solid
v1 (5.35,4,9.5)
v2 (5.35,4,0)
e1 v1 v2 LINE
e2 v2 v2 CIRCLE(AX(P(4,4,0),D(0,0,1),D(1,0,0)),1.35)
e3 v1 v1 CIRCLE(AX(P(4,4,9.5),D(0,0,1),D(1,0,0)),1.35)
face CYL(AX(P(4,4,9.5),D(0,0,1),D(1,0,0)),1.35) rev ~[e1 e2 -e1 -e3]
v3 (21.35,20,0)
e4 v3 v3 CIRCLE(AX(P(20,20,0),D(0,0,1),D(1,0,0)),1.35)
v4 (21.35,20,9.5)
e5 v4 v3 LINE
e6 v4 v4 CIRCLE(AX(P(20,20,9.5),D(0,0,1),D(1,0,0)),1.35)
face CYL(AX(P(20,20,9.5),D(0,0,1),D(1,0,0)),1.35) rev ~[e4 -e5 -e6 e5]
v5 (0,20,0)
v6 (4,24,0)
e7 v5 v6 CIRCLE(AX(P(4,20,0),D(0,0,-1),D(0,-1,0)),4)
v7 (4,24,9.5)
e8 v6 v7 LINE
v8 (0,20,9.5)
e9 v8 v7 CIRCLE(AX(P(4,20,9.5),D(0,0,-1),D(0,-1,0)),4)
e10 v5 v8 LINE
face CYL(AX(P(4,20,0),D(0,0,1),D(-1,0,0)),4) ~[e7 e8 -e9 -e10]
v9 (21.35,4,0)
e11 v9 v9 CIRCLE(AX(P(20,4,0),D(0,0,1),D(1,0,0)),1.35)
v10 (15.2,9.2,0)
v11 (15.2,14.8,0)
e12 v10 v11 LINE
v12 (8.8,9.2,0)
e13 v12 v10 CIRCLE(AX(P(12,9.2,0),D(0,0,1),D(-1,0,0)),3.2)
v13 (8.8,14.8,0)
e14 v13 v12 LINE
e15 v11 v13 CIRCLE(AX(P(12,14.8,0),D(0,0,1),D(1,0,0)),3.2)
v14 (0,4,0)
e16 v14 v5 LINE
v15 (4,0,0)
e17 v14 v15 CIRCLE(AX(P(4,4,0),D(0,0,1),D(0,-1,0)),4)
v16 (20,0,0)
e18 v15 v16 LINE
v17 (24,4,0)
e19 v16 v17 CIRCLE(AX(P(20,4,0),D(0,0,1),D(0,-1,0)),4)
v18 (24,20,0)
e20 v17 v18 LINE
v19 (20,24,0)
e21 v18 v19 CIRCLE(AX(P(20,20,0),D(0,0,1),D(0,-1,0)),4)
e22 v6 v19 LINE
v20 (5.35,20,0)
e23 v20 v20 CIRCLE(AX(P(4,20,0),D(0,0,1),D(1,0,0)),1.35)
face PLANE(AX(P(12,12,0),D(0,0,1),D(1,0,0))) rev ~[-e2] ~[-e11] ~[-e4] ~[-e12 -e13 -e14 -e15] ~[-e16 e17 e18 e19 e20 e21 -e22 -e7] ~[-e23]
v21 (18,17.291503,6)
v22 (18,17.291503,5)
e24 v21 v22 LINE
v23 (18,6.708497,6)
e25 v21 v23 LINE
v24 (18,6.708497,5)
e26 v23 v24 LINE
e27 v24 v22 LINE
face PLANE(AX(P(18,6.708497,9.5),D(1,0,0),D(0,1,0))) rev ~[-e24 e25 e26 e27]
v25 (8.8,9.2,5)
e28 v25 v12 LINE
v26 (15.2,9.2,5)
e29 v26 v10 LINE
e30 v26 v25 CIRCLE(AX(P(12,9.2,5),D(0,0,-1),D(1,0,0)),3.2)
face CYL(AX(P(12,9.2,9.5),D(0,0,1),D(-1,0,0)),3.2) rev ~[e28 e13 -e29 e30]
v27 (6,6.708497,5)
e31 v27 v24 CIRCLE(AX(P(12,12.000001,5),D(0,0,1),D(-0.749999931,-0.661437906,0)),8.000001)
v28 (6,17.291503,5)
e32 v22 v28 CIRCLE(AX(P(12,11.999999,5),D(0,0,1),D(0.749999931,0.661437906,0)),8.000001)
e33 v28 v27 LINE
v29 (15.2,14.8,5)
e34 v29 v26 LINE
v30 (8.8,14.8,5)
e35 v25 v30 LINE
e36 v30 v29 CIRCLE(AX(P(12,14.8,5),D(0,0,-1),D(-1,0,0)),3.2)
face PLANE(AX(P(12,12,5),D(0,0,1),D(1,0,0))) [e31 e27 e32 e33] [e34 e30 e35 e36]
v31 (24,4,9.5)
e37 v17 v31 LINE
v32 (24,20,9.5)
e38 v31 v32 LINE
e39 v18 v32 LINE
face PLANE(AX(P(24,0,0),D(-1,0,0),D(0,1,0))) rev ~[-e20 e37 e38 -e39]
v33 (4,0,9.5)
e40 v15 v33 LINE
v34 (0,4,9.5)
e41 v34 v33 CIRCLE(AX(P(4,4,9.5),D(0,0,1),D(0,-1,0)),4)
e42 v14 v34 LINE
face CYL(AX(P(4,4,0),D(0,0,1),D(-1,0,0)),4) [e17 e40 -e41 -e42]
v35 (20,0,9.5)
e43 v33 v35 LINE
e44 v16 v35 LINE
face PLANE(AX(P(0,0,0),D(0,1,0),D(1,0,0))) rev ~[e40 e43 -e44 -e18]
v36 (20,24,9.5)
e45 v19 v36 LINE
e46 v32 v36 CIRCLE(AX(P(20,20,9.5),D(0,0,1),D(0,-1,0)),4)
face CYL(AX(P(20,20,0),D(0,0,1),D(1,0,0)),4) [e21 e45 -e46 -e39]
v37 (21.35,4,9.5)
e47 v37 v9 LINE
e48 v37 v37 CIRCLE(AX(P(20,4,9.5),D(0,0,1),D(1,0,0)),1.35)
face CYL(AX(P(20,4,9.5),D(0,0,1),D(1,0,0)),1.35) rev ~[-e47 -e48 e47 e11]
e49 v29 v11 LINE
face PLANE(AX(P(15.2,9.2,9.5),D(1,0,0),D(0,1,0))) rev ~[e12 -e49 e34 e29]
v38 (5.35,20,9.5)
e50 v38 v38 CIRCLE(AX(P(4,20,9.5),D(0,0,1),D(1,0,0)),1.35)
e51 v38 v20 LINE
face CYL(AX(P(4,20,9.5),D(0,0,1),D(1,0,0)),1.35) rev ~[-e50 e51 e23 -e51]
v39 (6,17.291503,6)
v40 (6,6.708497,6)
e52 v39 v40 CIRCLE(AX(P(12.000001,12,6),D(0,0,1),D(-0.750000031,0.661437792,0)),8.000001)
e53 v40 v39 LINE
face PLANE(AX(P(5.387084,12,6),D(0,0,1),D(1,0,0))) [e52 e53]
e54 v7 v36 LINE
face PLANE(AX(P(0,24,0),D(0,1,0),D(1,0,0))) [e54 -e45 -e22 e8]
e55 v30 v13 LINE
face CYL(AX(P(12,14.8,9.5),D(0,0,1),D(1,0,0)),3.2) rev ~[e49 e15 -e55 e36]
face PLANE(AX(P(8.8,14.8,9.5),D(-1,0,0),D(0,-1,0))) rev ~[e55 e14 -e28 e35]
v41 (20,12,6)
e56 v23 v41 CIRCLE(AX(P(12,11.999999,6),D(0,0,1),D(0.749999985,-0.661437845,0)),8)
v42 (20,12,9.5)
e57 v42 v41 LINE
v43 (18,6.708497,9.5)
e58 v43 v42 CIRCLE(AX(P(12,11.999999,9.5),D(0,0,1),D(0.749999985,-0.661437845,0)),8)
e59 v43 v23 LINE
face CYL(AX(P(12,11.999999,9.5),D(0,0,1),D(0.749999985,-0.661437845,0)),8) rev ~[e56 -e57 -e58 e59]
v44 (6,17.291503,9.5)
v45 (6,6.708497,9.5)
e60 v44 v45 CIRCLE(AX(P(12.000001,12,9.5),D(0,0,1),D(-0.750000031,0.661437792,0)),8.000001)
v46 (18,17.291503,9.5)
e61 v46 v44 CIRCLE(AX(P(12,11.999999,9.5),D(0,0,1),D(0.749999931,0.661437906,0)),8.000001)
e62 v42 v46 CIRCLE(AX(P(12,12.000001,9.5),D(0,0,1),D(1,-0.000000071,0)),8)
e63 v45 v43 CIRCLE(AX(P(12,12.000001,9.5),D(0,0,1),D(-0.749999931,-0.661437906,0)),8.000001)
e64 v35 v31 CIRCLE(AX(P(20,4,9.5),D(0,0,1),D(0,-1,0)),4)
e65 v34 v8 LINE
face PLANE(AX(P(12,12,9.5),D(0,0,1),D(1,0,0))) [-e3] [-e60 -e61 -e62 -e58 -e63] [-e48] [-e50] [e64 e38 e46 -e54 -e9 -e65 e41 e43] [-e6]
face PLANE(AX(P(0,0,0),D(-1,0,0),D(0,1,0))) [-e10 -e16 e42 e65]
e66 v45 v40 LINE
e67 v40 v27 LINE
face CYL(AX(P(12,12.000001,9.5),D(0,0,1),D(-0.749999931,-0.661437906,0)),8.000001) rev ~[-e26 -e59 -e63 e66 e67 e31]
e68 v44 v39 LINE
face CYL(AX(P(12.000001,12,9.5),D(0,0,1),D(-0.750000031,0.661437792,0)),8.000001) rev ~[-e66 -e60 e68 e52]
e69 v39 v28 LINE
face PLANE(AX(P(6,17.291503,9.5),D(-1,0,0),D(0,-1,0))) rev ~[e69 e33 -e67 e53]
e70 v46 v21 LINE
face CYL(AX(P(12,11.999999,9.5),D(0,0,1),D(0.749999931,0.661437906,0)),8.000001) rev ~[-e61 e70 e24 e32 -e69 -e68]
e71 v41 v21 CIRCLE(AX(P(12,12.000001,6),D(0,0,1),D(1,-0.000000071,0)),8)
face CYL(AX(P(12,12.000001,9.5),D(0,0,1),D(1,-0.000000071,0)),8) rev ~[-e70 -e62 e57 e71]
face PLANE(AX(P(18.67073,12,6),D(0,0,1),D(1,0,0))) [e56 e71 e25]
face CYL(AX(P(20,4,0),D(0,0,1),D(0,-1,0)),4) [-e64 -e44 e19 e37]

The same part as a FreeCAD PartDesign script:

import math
import FreeCAD as App
import Part
import Sketcher


def edges_at(feature, points):
    """Names of the edges that pass closest to the given points."""
    edges = feature.Shape.Edges
    near = lambda p: min(range(len(edges)), key=lambda i: edges[i].distToShape(Part.Vertex(*p))[0])
    return sorted({f"Edge{near(p) + 1}" for p in points})

doc = App.newDocument("Part")
body = doc.addObject("PartDesign::Body", "Body")

# Sketch on XY plane
sketch1 = doc.addObject("Sketcher::SketchObject", "Sketch")
body.addObject(sketch1)
sketch1.AttachmentSupport = (doc.XY_Plane, [""])
sketch1.MapMode = "FlatFace"
sketch1.addGeometry([
    Part.LineSegment(App.Vector(0, 24, 0), App.Vector(0, 0, 0)),
    Part.LineSegment(App.Vector(0, 0, 0), App.Vector(24, 0, 0)),
    Part.LineSegment(App.Vector(24, 0, 0), App.Vector(24, 24, 0)),
    Part.LineSegment(App.Vector(24, 24, 0), App.Vector(0, 24, 0)),
], False)
sketch1.addConstraint([
    Sketcher.Constraint("Coincident", 0, 2, 1, 1),
    Sketcher.Constraint("Coincident", 1, 2, 2, 1),
    Sketcher.Constraint("Coincident", 2, 2, 3, 1),
    Sketcher.Constraint("Coincident", 3, 2, 0, 1),
    Sketcher.Constraint("Vertical", 0),
    Sketcher.Constraint("Horizontal", 1),
    Sketcher.Constraint("Vertical", 2),
    Sketcher.Constraint("Horizontal", 3),
    Sketcher.Constraint("Coincident", 0, 2, -1, 1),
    Sketcher.Constraint("Equal", 3, 0),
    Sketcher.Constraint("DistanceX", 1, 1, 1, 2, 24.0),
])
pad1 = doc.addObject("PartDesign::Pad", "Pad")
body.addObject(pad1)
pad1.Profile = sketch1
pad1.Length = 9.5
doc.recompute()

fillet = doc.addObject("PartDesign::Fillet", "Fillet")
body.addObject(fillet)
fillet.Base = (pad1, edges_at(pad1, [
    (0, 0, 4.75),
    (24, 0, 4.75),
    (24, 24, 4.75),
    (0, 24, 4.75),
]))
fillet.Radius = 4

# Sketch on XY plane
sketch2 = doc.addObject("Sketcher::SketchObject", "Sketch001")
body.addObject(sketch2)
sketch2.AttachmentSupport = (doc.XY_Plane, [""])
sketch2.MapMode = "FlatFace"
sketch2.AttachmentOffset = App.Placement(App.Vector(0, 0, 9.5), App.Rotation())
sketch2.addGeometry([
    Part.ArcOfCircle(Part.Circle(App.Vector(12, 14.8, 0), App.Vector(0, 0, 1), 3.2), math.radians(0), math.radians(180)),
    Part.LineSegment(App.Vector(8.8, 14.8, 0), App.Vector(8.8, 9.2, 0)),
    Part.ArcOfCircle(Part.Circle(App.Vector(12, 9.2, 0), App.Vector(0, 0, 1), 3.2), math.radians(180), math.radians(360)),
    Part.LineSegment(App.Vector(15.2, 9.2, 0), App.Vector(15.2, 14.8, 0)),
], False)
sketch2.addConstraint([
    Sketcher.Constraint("Tangent", 0, 2, 1, 1),
    Sketcher.Constraint("Tangent", 1, 2, 2, 1),
    Sketcher.Constraint("Tangent", 2, 2, 3, 1),
    Sketcher.Constraint("Tangent", 3, 2, 0, 1),
    Sketcher.Constraint("Vertical", 1),
    Sketcher.Constraint("Vertical", 3),
    Sketcher.Constraint("Radius", 0, 3.2),
    Sketcher.Constraint("DistanceY", 1, 2, 1, 1, 5.6),
    Sketcher.Constraint("DistanceX", -1, 1, 0, 3, 12.0),
    Sketcher.Constraint("DistanceY", -1, 1, 0, 3, 14.8),
])
pocket1 = doc.addObject("PartDesign::Pocket", "Pocket")
body.addObject(pocket1)
pocket1.Profile = sketch2
pocket1.Type = "ThroughAll"

# Sketch on XY plane
sketch3 = doc.addObject("Sketcher::SketchObject", "Sketch002")
body.addObject(sketch3)
sketch3.AttachmentSupport = (doc.XY_Plane, [""])
sketch3.MapMode = "FlatFace"
sketch3.AttachmentOffset = App.Placement(App.Vector(0, 0, 9.5), App.Rotation())
sketch3.addGeometry([
    Part.ArcOfCircle(Part.Circle(App.Vector(12, 12, 0), App.Vector(0, 0, 1), 8), math.radians(41), math.radians(139)),  # 0
    Part.LineSegment(App.Vector(6, 17.3, 0), App.Vector(6, 6.7, 0)),  # 1
    Part.ArcOfCircle(Part.Circle(App.Vector(12, 12, 0), App.Vector(0, 0, 1), 8), math.radians(-139), math.radians(-41)),  # 2
    Part.LineSegment(App.Vector(18, 6.7, 0), App.Vector(18, 17.3, 0)),  # 3
    Part.ArcOfCircle(Part.Circle(App.Vector(12, 9.2, 0), App.Vector(0, 0, 1), 3.2), math.radians(180), math.radians(360)),  # 4
    Part.LineSegment(App.Vector(8.8, 9.2, 0), App.Vector(8.8, 14.8, 0)),  # 5
    Part.ArcOfCircle(Part.Circle(App.Vector(12, 14.8, 0), App.Vector(0, 0, 1), 3.2), math.radians(0), math.radians(180)),  # 6
    Part.LineSegment(App.Vector(15.2, 14.8, 0), App.Vector(15.2, 9.2, 0)),  # 7
], False)
sketch3.addConstraint([
    Sketcher.Constraint("Coincident", 0, 2, 1, 1),
    Sketcher.Constraint("Coincident", 1, 2, 2, 1),
    Sketcher.Constraint("Coincident", 2, 2, 3, 1),
    Sketcher.Constraint("Coincident", 3, 2, 0, 1),
    Sketcher.Constraint("Tangent", 4, 1, 5, 1),
    Sketcher.Constraint("Tangent", 5, 2, 6, 2),
    Sketcher.Constraint("Tangent", 6, 1, 7, 1),
    Sketcher.Constraint("Tangent", 7, 2, 4, 2),
    Sketcher.Constraint("Vertical", 1),
    Sketcher.Constraint("Vertical", 3),
    Sketcher.Constraint("Vertical", 5),
    Sketcher.Constraint("Vertical", 7),
    Sketcher.Constraint("Coincident", 2, 3, 0, 3),
    Sketcher.Constraint("Equal", 0, 2),
    Sketcher.Constraint("Horizontal", 1, 2, 2, 2),
    Sketcher.Constraint("Vertical", 2, 3, 4, 3),
    Sketcher.Constraint("Radius", 0, 8.000001),
    Sketcher.Constraint("Radius", 4, 3.2),
    Sketcher.Constraint("DistanceY", 5, 1, 5, 2, 5.6),
    Sketcher.Constraint("DistanceX", -1, 1, 0, 3, 12.0),
    Sketcher.Constraint("DistanceY", -1, 1, 0, 3, 11.999999),
    Sketcher.Constraint("DistanceX", -1, 1, 0, 2, 6.0),
    Sketcher.Constraint("DistanceY", -1, 1, 4, 3, 9.2),
])
pocket2 = doc.addObject("PartDesign::Pocket", "Pocket001")
body.addObject(pocket2)
pocket2.Profile = sketch3
pocket2.Length = 4.5

# Sketch on XY plane
sketch4 = doc.addObject("Sketcher::SketchObject", "Sketch003")
body.addObject(sketch4)
sketch4.AttachmentSupport = (doc.XY_Plane, [""])
sketch4.MapMode = "FlatFace"
sketch4.AttachmentOffset = App.Placement(App.Vector(0, 0, 9.5), App.Rotation())
sketch4.addGeometry([
    Part.ArcOfCircle(Part.Circle(App.Vector(12, 12, 0), App.Vector(0, 0, 1), 8), math.radians(139), math.radians(221)),  # 0
    Part.LineSegment(App.Vector(6, 7, 0), App.Vector(6, 17, 0)),  # 1
    Part.ArcOfCircle(Part.Circle(App.Vector(12, 12, 0), App.Vector(0, 0, 1), 8), math.radians(-41), math.radians(0)),  # 2
    Part.ArcOfCircle(Part.Circle(App.Vector(12, 12, 0), App.Vector(0, 0, 1), 8), math.radians(0), math.radians(41)),  # 3
    Part.LineSegment(App.Vector(18, 17, 0), App.Vector(18, 7, 0)),  # 4
], False)
sketch4.addConstraint([
    Sketcher.Constraint("Coincident", 0, 1, 1, 2),
    Sketcher.Constraint("Coincident", 1, 1, 0, 2),
    Sketcher.Constraint("Tangent", 2, 2, 3, 1),
    Sketcher.Constraint("Coincident", 3, 2, 4, 1),
    Sketcher.Constraint("Coincident", 4, 2, 2, 1),
    Sketcher.Constraint("Vertical", 1),
    Sketcher.Constraint("Vertical", 4),
    Sketcher.Constraint("Coincident", 2, 3, 0, 3),
    Sketcher.Constraint("Equal", 0, 2),
    Sketcher.Constraint("Equal", 2, 3),
    Sketcher.Constraint("Horizontal", 3, 3, 2, 2),
    Sketcher.Constraint("Horizontal", 0, 1, 3, 2),
    Sketcher.Constraint("Radius", 0, 8.000001),
    Sketcher.Constraint("DistanceX", -1, 1, 0, 3, 12.000001),
    Sketcher.Constraint("DistanceY", -1, 1, 0, 3, 12.0),
    Sketcher.Constraint("DistanceX", -1, 1, 0, 1, 6.0),
])
pocket3 = doc.addObject("PartDesign::Pocket", "Pocket002")
body.addObject(pocket3)
pocket3.Profile = sketch4
pocket3.Length = 3.5

# Sketch on XY plane
sketch5 = doc.addObject("Sketcher::SketchObject", "Sketch004")
body.addObject(sketch5)
sketch5.AttachmentSupport = (doc.XY_Plane, [""])
sketch5.MapMode = "FlatFace"
sketch5.AttachmentOffset = App.Placement(App.Vector(0, 0, 9.5), App.Rotation())
sketch5.addGeometry([
    Part.Circle(App.Vector(4, 4, 0), App.Vector(0, 0, 1), 1.4),
    Part.Circle(App.Vector(4, 20, 0), App.Vector(0, 0, 1), 1.4),
    Part.Circle(App.Vector(20, 4, 0), App.Vector(0, 0, 1), 1.4),
    Part.Circle(App.Vector(20, 20, 0), App.Vector(0, 0, 1), 1.4),
], False)
sketch5.addConstraint([
    Sketcher.Constraint("Equal", 0, 1),
    Sketcher.Constraint("Equal", 1, 2),
    Sketcher.Constraint("Equal", 2, 3),
    Sketcher.Constraint("Horizontal", 0, 3, 2, 3),
    Sketcher.Constraint("Horizontal", 1, 3, 3, 3),
    Sketcher.Constraint("Vertical", 0, 3, 1, 3),
    Sketcher.Constraint("Vertical", 2, 3, 3, 3),
    Sketcher.Constraint("Diameter", 0, 2.7),
    Sketcher.Constraint("DistanceX", -1, 1, 0, 3, 4.0),
    Sketcher.Constraint("DistanceY", -1, 1, 0, 3, 4.0),
    Sketcher.Constraint("DistanceY", -1, 1, 1, 3, 20.0),
    Sketcher.Constraint("DistanceX", -1, 1, 2, 3, 20.0),
])
pocket4 = doc.addObject("PartDesign::Pocket", "Pocket003")
body.addObject(pocket4)
pocket4.Profile = sketch5
pocket4.Type = "ThroughAll"

doc.recompute()
